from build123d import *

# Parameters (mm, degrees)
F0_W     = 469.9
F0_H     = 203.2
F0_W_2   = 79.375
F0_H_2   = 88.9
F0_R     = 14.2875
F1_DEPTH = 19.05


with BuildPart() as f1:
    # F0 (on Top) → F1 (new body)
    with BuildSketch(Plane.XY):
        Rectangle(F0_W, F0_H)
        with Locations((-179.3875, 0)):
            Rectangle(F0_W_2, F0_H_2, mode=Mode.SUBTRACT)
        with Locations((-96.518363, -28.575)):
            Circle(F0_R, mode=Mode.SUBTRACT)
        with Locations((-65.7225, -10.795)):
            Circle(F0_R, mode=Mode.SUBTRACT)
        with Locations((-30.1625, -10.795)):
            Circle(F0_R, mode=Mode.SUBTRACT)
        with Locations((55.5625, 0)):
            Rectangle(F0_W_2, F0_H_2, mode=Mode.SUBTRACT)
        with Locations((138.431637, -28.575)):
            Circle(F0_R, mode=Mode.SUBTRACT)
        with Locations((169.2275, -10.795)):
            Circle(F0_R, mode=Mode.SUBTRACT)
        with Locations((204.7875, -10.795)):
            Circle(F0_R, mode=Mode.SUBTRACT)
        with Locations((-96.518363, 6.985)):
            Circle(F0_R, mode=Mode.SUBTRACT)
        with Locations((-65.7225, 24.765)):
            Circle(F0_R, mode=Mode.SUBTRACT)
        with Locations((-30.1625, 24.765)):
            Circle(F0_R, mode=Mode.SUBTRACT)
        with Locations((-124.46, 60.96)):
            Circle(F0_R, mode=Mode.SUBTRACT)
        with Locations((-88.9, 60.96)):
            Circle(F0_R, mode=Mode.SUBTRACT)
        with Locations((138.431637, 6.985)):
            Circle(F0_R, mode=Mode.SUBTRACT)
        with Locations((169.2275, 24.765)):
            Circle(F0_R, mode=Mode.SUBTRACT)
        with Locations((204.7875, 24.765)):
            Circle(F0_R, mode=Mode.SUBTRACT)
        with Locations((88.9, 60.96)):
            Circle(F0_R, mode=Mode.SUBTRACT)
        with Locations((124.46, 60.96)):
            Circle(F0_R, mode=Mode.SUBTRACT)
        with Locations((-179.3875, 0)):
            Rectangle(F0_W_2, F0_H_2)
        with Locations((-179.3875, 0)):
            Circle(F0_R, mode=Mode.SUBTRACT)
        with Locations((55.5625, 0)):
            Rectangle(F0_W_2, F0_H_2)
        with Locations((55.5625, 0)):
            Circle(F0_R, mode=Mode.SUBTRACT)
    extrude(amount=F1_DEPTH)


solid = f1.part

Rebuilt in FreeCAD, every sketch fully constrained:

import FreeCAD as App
import Part
import Sketcher

V = App.Vector
Q = App.Units.Quantity


def add_polygon(sketch, points):
    """Adds a closed chain of lines whose ends are joined by coincident constraints."""
    first, n = sketch.GeometryCount, len(points)
    for a, b in zip(points, points[1:] + points[:1]):
        sketch.addGeometry(Part.LineSegment(App.Vector(*a, 0), App.Vector(*b, 0)), False)
    for i in range(n):
        sketch.addConstraint(Sketcher.Constraint("Coincident", first + i, 2, first + (i + 1) % n, 1))

doc = App.newDocument("Part")
body = doc.addObject("PartDesign::Body", "Body")

sketch1 = doc.addObject("Sketcher::SketchObject", "Sketch")
body.addObject(sketch1)
sketch1.AttachmentSupport = (doc.XY_Plane, [""])
sketch1.MapMode = "FlatFace"
add_polygon(sketch1, [(-235, 102), (-235, -102), (235, -102), (235, 102)])
sketch1.addGeometry(Part.Circle(V(-97, -29, 0), V(0, 0, 1), 14), False)
sketch1.addGeometry(Part.Circle(V(-179, 0, 0), V(0, 0, 1), 14), False)
sketch1.addGeometry(Part.Circle(V(-97, 7, 0), V(0, 0, 1), 14), False)
sketch1.addGeometry(Part.Circle(V(-66, -11, 0), V(0, 0, 1), 14), False)
sketch1.addGeometry(Part.Circle(V(-30, -11, 0), V(0, 0, 1), 14), False)
sketch1.addGeometry(Part.Circle(V(138, -29, 0), V(0, 0, 1), 14), False)
sketch1.addGeometry(Part.Circle(V(56, 0, 0), V(0, 0, 1), 14), False)
sketch1.addGeometry(Part.Circle(V(169, -11, 0), V(0, 0, 1), 14), False)
sketch1.addGeometry(Part.Circle(V(205, -11, 0), V(0, 0, 1), 14), False)
sketch1.addGeometry(Part.Circle(V(138, 7, 0), V(0, 0, 1), 14), False)
sketch1.addGeometry(Part.Circle(V(-66, 25, 0), V(0, 0, 1), 14), False)
sketch1.addGeometry(Part.Circle(V(-30, 25, 0), V(0, 0, 1), 14), False)
sketch1.addGeometry(Part.Circle(V(-124, 61, 0), V(0, 0, 1), 14), False)
sketch1.addGeometry(Part.Circle(V(-89, 61, 0), V(0, 0, 1), 14), False)
sketch1.addGeometry(Part.Circle(V(169, 25, 0), V(0, 0, 1), 14), False)
sketch1.addGeometry(Part.Circle(V(205, 25, 0), V(0, 0, 1), 14), False)
sketch1.addGeometry(Part.Circle(V(89, 61, 0), V(0, 0, 1), 14), False)
sketch1.addGeometry(Part.Circle(V(124, 61, 0), V(0, 0, 1), 14), False)
sketch1.addConstraint(Sketcher.Constraint("Vertical", 0))
sketch1.addConstraint(Sketcher.Constraint("Horizontal", 1))
sketch1.addConstraint(Sketcher.Constraint("Vertical", 2))
sketch1.addConstraint(Sketcher.Constraint("Horizontal", 3))
sketch1.addConstraint(Sketcher.Constraint("Equal", 4, 5))
sketch1.addConstraint(Sketcher.Constraint("Equal", 5, 6))
sketch1.addConstraint(Sketcher.Constraint("Equal", 6, 7))
sketch1.addConstraint(Sketcher.Constraint("Equal", 7, 8))
sketch1.addConstraint(Sketcher.Constraint("Equal", 8, 9))
sketch1.addConstraint(Sketcher.Constraint("Equal", 9, 10))
sketch1.addConstraint(Sketcher.Constraint("Equal", 10, 11))
sketch1.addConstraint(Sketcher.Constraint("Equal", 11, 12))
sketch1.addConstraint(Sketcher.Constraint("Equal", 12, 13))
sketch1.addConstraint(Sketcher.Constraint("Equal", 13, 14))
sketch1.addConstraint(Sketcher.Constraint("Equal", 14, 15))
sketch1.addConstraint(Sketcher.Constraint("Equal", 15, 16))
sketch1.addConstraint(Sketcher.Constraint("Equal", 16, 17))
sketch1.addConstraint(Sketcher.Constraint("Equal", 17, 18))
sketch1.addConstraint(Sketcher.Constraint("Equal", 18, 19))
sketch1.addConstraint(Sketcher.Constraint("Equal", 19, 20))
sketch1.addConstraint(Sketcher.Constraint("Equal", 20, 21))
sketch1.addConstraint(Sketcher.Constraint("Symmetric", 0, 2, 2, 2, -1, 1))
sketch1.addConstraint(Sketcher.Constraint("Symmetric", 17, 3, 20, 3, -2))
sketch1.addConstraint(Sketcher.Constraint("Symmetric", 16, 3, 21, 3, -2))
sketch1.addConstraint(Sketcher.Constraint("PointOnObject", 5, 3, -1))
sketch1.addConstraint(Sketcher.Constraint("PointOnObject", 10, 3, -1))
sketch1.addConstraint(Sketcher.Constraint("Horizontal", 7, 3, 8, 3))
sketch1.addConstraint(Sketcher.Constraint("Horizontal", 4, 3, 9, 3))
sketch1.addConstraint(Sketcher.Constraint("Horizontal", 8, 3, 11, 3))
sketch1.addConstraint(Sketcher.Constraint("Horizontal", 11, 3, 12, 3))
sketch1.addConstraint(Sketcher.Constraint("Horizontal", 6, 3, 13, 3))
sketch1.addConstraint(Sketcher.Constraint("Horizontal", 14, 3, 15, 3))
sketch1.addConstraint(Sketcher.Constraint("Horizontal", 16, 3, 17, 3))
sketch1.addConstraint(Sketcher.Constraint("Horizontal", 15, 3, 18, 3))
sketch1.addConstraint(Sketcher.Constraint("Horizontal", 18, 3, 19, 3))
sketch1.addConstraint(Sketcher.Constraint("Vertical", 4, 3, 6, 3))
sketch1.addConstraint(Sketcher.Constraint("Vertical", 9, 3, 13, 3))
sketch1.addConstraint(Sketcher.Constraint("Vertical", 7, 3, 14, 3))
sketch1.addConstraint(Sketcher.Constraint("Vertical", 8, 3, 15, 3))
sketch1.addConstraint(Sketcher.Constraint("Vertical", 11, 3, 18, 3))
sketch1.addConstraint(Sketcher.Constraint("Vertical", 12, 3, 19, 3))
sketch1.addConstraint(Sketcher.Constraint("DistanceY", 0, 2, 0, 1, Q("8 in")))
sketch1.addConstraint(Sketcher.Constraint("Diameter", 4, Q("1.125 in")))
sketch1.addConstraint(Sketcher.Constraint("DistanceX", 1, 1, 1, 2, Q("18.5 in")))
sketch1.addConstraint(Sketcher.Constraint("DistanceX", 16, 3, -1, 1, Q("4.9 in")))
sketch1.addConstraint(Sketcher.Constraint("DistanceY", -1, 1, 16, 3, Q("2.4 in")))
sketch1.addConstraint(Sketcher.Constraint("DistanceX", 17, 3, -1, 1, Q("3.5 in")))
sketch1.addConstraint(Sketcher.Constraint("DistanceY", 4, 3, 6, 3, Q("1.4 in")))
sketch1.addConstraint(Sketcher.Constraint("DistanceY", 4, 3, 7, 3, Q("0.7 in")))
sketch1.addConstraint(Sketcher.Constraint("DistanceX", 7, 3, 8, 3, Q("1.4 in")))
sketch1.addConstraint(Sketcher.Constraint("DistanceX", 11, 3, 12, 3, Q("1.4 in")))
sketch1.addConstraint(Sketcher.Constraint("DistanceY", 6, 3, 14, 3, Q("0.7 in")))
sketch1.addConstraint(Sketcher.Constraint("DistanceX", 4, 3, 9, 3, Q("9.25 in")))
sketch1.addConstraint(Sketcher.Constraint("DistanceX", 8, 3, 11, 3, Q("7.85 in")))
sketch1.addConstraint(Sketcher.Constraint("DistanceY", 4, 3, -1, 1, Q("1.125 in")))
sketch1.addConstraint(Sketcher.Constraint("DistanceX", 5, 3, -1, 1, Q("7.0625 in")))
sketch1.addConstraint(Sketcher.Constraint("DistanceX", 8, 3, -1, 1, Q("1.1875 in")))
sketch1.addConstraint(Sketcher.Constraint("DistanceX", -1, 1, 10, 3, Q("2.1875 in")))
sketch1.addConstraint(Sketcher.Constraint("DistanceX", 4, 3, -1, 1, Q("96.518363 mm")))
pad1 = doc.addObject("PartDesign::Pad", "Pad")
body.addObject(pad1)
pad1.Profile = sketch1
pad1.Length = Q("0.75 in")

doc.recompute()
